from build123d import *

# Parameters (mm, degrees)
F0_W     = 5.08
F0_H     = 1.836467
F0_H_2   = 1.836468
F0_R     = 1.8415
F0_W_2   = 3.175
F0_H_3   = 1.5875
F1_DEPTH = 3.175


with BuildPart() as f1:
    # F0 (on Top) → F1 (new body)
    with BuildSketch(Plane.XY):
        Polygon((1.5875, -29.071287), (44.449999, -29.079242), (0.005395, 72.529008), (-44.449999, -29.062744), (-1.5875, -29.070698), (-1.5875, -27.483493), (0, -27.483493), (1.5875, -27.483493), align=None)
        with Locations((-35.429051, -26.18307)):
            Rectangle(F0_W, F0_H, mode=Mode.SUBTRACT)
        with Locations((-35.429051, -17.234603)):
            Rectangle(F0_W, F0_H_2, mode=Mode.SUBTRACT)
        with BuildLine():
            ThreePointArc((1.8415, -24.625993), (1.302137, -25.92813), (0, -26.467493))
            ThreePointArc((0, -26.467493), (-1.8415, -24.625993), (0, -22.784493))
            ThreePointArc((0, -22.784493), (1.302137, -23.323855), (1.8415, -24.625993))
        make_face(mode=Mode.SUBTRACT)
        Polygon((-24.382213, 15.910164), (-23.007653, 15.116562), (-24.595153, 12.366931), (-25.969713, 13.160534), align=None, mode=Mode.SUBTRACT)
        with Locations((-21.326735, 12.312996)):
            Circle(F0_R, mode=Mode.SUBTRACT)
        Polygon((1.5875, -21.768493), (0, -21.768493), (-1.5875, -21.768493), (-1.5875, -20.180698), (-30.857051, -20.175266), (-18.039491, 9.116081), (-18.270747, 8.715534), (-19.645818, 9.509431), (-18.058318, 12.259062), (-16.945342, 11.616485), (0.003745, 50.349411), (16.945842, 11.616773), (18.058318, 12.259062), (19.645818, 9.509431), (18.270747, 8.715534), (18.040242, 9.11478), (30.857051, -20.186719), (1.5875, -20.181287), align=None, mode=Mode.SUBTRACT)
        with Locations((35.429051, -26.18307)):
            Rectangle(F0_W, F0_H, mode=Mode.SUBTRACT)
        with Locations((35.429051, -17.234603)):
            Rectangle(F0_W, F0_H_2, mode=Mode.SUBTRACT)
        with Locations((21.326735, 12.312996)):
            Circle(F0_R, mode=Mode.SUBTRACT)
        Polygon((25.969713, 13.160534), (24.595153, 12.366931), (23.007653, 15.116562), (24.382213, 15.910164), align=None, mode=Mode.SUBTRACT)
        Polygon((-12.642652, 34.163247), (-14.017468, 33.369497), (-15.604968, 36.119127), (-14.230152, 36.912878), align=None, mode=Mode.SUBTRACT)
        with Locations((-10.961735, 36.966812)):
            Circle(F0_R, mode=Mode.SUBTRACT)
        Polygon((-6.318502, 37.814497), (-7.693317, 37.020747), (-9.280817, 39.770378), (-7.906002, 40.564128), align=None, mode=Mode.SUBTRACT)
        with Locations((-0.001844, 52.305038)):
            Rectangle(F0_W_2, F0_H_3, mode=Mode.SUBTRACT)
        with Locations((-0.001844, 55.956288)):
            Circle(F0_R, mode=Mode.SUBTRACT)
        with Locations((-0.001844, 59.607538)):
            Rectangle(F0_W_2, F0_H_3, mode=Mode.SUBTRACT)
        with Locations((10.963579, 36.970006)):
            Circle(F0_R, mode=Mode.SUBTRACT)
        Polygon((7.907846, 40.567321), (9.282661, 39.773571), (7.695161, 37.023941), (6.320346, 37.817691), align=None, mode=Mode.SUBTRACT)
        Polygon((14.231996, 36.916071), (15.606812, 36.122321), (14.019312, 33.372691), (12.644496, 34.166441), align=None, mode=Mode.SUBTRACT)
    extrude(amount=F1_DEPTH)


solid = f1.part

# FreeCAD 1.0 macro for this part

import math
import FreeCAD as App
import Part
import Sketcher
from FreeCAD import Vector
Q = App.Units.Quantity


def add_polygon(sketch, points):
    """Adds a closed chain of lines whose ends are joined by coincident constraints."""
    first, n = sketch.GeometryCount, len(points)
    for a, b in zip(points, points[1:] + points[:1]):
        sketch.addGeometry(Part.LineSegment(App.Vector(*a, 0), App.Vector(*b, 0)), False)
    for i in range(n):
        sketch.addConstraint(Sketcher.Constraint("Coincident", first + i, 2, first + (i + 1) % n, 1))

doc = App.newDocument("Part")
body = doc.addObject("PartDesign::Body", "Body")

sketch1 = body.newObject("Sketcher::SketchObject", "Sketch")
sketch1.AttachmentSupport = (doc.getObject("XY_Plane"), [""])
sketch1.MapMode = "FlatFace"
add_polygon(sketch1, [(1.5875, -29.071287), (44.449999, -29.079242), (0.005395, 72.529008), (-44.449999, -29.062744), (-1.5875, -29.070698), (-1.5875, -27.483493), (1.5875, -27.483493)])
add_polygon(sketch1, [(-32.889051, -27.101304), (-37.969051, -27.101304), (-37.969051, -25.264837), (-32.889051, -25.264837)])
add_polygon(sketch1, [(-32.889051, -18.152837), (-37.969051, -18.152837), (-37.969051, -16.316369), (-32.889051, -16.316369)])
add_polygon(sketch1, [(-25.969713, 13.160534), (-24.382213, 15.910164), (-23.007653, 15.116562), (-24.595153, 12.366931)])
sketch1.addGeometry(Part.Circle(Vector(-21.326735, 12.312996, 0), Vector(0, 0, 1), 1.8415), False)
sketch1.addGeometry(Part.ArcOfCircle(Part.Circle(Vector(0.000001, -24.625992, 0), Vector(0, 0, 1), 1.841499), math.radians(-0.000038), math.radians(90.000038)), False)
sketch1.addGeometry(Part.ArcOfCircle(Part.Circle(Vector(0, -24.625993, 0), Vector(0, 0, 1), 1.8415), math.radians(-89.999985), math.radians(-0.000015)), False)
sketch1.addGeometry(Part.ArcOfCircle(Part.Circle(Vector(0, -24.625993, 0), Vector(0, 0, 1), 1.8415), math.radians(90), math.radians(270)), False)
add_polygon(sketch1, [(37.969051, -27.101304), (32.889051, -27.101304), (32.889051, -25.264837), (37.969051, -25.264837)])
add_polygon(sketch1, [(37.969051, -18.152837), (32.889051, -18.152837), (32.889051, -16.316369), (37.969051, -16.316369)])
add_polygon(sketch1, [(1.5875, -20.181287), (1.5875, -21.768493), (-1.5875, -21.768493), (-1.5875, -20.180698), (-30.857051, -20.175266), (-18.039491, 9.116081), (-18.270747, 8.715534), (-19.645818, 9.509431), (-18.058318, 12.259062), (-16.945342, 11.616485), (0.003745, 50.349411), (16.945842, 11.616773), (18.058318, 12.259062), (19.645818, 9.509431), (18.270747, 8.715534), (18.040242, 9.11478), (30.857051, -20.186719)])
sketch1.addGeometry(Part.Circle(Vector(21.326735, 12.312996, 0), Vector(0, 0, 1), 1.8415), False)
add_polygon(sketch1, [(24.382213, 15.910164), (25.969713, 13.160534), (24.595153, 12.366931), (23.007653, 15.116562)])
add_polygon(sketch1, [(-14.230152, 36.912878), (-12.642652, 34.163247), (-14.017468, 33.369497), (-15.604968, 36.119127)])
sketch1.addGeometry(Part.Circle(Vector(-10.961735, 36.966812, 0), Vector(0, 0, 1), 1.8415), False)
add_polygon(sketch1, [(-7.906002, 40.564128), (-6.318502, 37.814497), (-7.693317, 37.020747), (-9.280817, 39.770378)])
add_polygon(sketch1, [(1.585656, 51.511288), (-1.589344, 51.511288), (-1.589344, 53.098788), (1.585656, 53.098788)])
sketch1.addGeometry(Part.Circle(Vector(-0.001844, 55.956288, 0), Vector(0, 0, 1), 1.8415), False)
add_polygon(sketch1, [(1.585656, 58.813788), (-1.589344, 58.813788), (-1.589344, 60.401288), (1.585656, 60.401288)])
add_polygon(sketch1, [(12.644496, 34.166441), (14.231996, 36.916071), (15.606812, 36.122321), (14.019312, 33.372691)])
sketch1.addGeometry(Part.Circle(Vector(10.963579, 36.970006, 0), Vector(0, 0, 1), 1.8415), False)
add_polygon(sketch1, [(6.320346, 37.817691), (7.907846, 40.567321), (9.282661, 39.773571), (7.695161, 37.023941)])
sketch1.addConstraint([
    Sketcher.Constraint("Tangent", 20, 1, 21, 2),
    Sketcher.Constraint("Tangent", 21, 1, 22, 2),
    Sketcher.Constraint("Tangent", 22, 1, 20, 2),
    Sketcher.Constraint("Vertical", 4),
    Sketcher.Constraint("Horizontal", 5),
    Sketcher.Constraint("Vertical", 6),
    Sketcher.Constraint("Horizontal", 7),
    Sketcher.Constraint("Vertical", 8),
    Sketcher.Constraint("Horizontal", 9),
    Sketcher.Constraint("Vertical", 10),
    Sketcher.Constraint("Horizontal", 11),
    Sketcher.Constraint("Vertical", 12),
    Sketcher.Constraint("Horizontal", 13),
    Sketcher.Constraint("Vertical", 14),
    Sketcher.Constraint("Horizontal", 23),
    Sketcher.Constraint("Vertical", 24),
    Sketcher.Constraint("Horizontal", 25),
    Sketcher.Constraint("Vertical", 26),
    Sketcher.Constraint("Horizontal", 27),
    Sketcher.Constraint("Vertical", 28),
    Sketcher.Constraint("Horizontal", 29),
    Sketcher.Constraint("Vertical", 30),
    Sketcher.Constraint("Vertical", 31),
    Sketcher.Constraint("Horizontal", 32),
    Sketcher.Constraint("Vertical", 33),
    Sketcher.Constraint("Horizontal", 62),
    Sketcher.Constraint("Vertical", 63),
    Sketcher.Constraint("Horizontal", 64),
    Sketcher.Constraint("Vertical", 65),
    Sketcher.Constraint("Horizontal", 67),
    Sketcher.Constraint("Vertical", 68),
    Sketcher.Constraint("Horizontal", 69),
    Sketcher.Constraint("Vertical", 70),
    Sketcher.Constraint("Equal", 19, 20),
    Sketcher.Constraint("Equal", 22, 48),
    Sketcher.Constraint("Equal", 48, 57),
    Sketcher.Constraint("Equal", 57, 66),
    Sketcher.Constraint("Equal", 66, 75),
    Sketcher.Constraint("Symmetric", 19, 3, 48, 3, -2),
    Sketcher.Constraint("Symmetric", 10, 2, 23, 2, -2),
    Sketcher.Constraint("Symmetric", 8, 2, 25, 2, -2),
    Sketcher.Constraint("Symmetric", 14, 2, 27, 2, -2),
    Sketcher.Constraint("Symmetric", 12, 2, 29, 2, -2),
    Sketcher.Constraint("Symmetric", 38, 2, 42, 2, -2),
    Sketcher.Constraint("Symmetric", 37, 2, 43, 2, -2),
    Sketcher.Constraint("Symmetric", 36, 2, 44, 2, -2),
    Sketcher.Constraint("Symmetric", 18, 2, 49, 2, -2),
    Sketcher.Constraint("Symmetric", 17, 2, 50, 2, -2),
    Sketcher.Constraint("Symmetric", 16, 2, 51, 2, -2),
    Sketcher.Constraint("Symmetric", 15, 2, 52, 2, -2),
    Sketcher.Constraint("PointOnObject", 20, 3, -2),
    Sketcher.Constraint("PointOnObject", 21, 1, -2),
    Sketcher.Constraint("PointOnObject", 22, 1, -2),
    Sketcher.Constraint("Parallel", 0, 3),
    Sketcher.Constraint("Perpendicular", 15, 16),
    Sketcher.Constraint("Perpendicular", 16, 17),
    Sketcher.Constraint("Perpendicular", 17, 18),
    Sketcher.Constraint("Parallel", 3, 34),
    Sketcher.Constraint("Parallel", 2, 35),
    Sketcher.Constraint("Perpendicular", 18, 36),
    Sketcher.Constraint("Perpendicular", 36, 37),
    Sketcher.Constraint("Perpendicular", 37, 38),
    Sketcher.Constraint("Perpendicular", 38, 39),
    Sketcher.Constraint("Parallel", 35, 40),
    Sketcher.Constraint("Parallel", 1, 41),
    Sketcher.Constraint("Perpendicular", 42, 43),
    Sketcher.Constraint("Perpendicular", 44, 45),
    Sketcher.Constraint("Parallel", 41, 46),
    Sketcher.Constraint("Parallel", 34, 47),
    Sketcher.Constraint("Perpendicular", 52, 53),
    Sketcher.Constraint("Perpendicular", 53, 54),
    Sketcher.Constraint("Perpendicular", 54, 55),
    Sketcher.Constraint("Perpendicular", 55, 56),
    Sketcher.Constraint("Perpendicular", 56, 58),
    Sketcher.Constraint("Perpendicular", 58, 59),
    Sketcher.Constraint("Perpendicular", 59, 60),
    Sketcher.Constraint("Perpendicular", 60, 61),
    Sketcher.Constraint("Perpendicular", 39, 71),
    Sketcher.Constraint("Perpendicular", 71, 72),
    Sketcher.Constraint("Perpendicular", 72, 73),
    Sketcher.Constraint("Perpendicular", 73, 74),
    Sketcher.Constraint("Perpendicular", 74, 76),
    Sketcher.Constraint("Perpendicular", 76, 77),
    Sketcher.Constraint("Perpendicular", 77, 78),
    Sketcher.Constraint("Perpendicular", 78, 79),
    Sketcher.Constraint("Horizontal", 22, 3, 20, 1),
    Sketcher.Constraint("Vertical", 8, 2, 11, 2),
    Sketcher.Constraint("Vertical", 10, 2, 13, 2),
    Sketcher.Constraint("Vertical", 6, 2, 31, 2),
    Sketcher.Constraint("Vertical", 4, 2, 32, 2),
    Sketcher.Constraint("Vertical", 63, 2, 67, 2),
    Sketcher.Constraint("Vertical", 65, 2, 69, 2),
    Sketcher.Constraint("Equal", 32, 62),
    Sketcher.Constraint("Equal", 10, 12),
    Sketcher.Constraint("Equal", 4, 31),
    Sketcher.Constraint("Equal", 6, 33),
    Sketcher.Constraint("Equal", 65, 68),
    Sketcher.Constraint("Equal", 0, 3),
    Sketcher.Constraint("Equal", 17, 38),
    Sketcher.Constraint("Equal", 34, 47),
    Sketcher.Constraint("Equal", 51, 53),
    Sketcher.Constraint("Equal", 55, 58),
    Sketcher.Constraint("Equal", 56, 59),
    Sketcher.Constraint("Equal", 60, 71),
    Sketcher.Constraint("Equal", 61, 72),
    Sketcher.Constraint("Equal", 73, 76),
    Sketcher.Constraint("Equal", 74, 77),
    Sketcher.Constraint("Diameter", 19, Q("0.145 in")),
    Sketcher.Constraint("DistanceX", 7, 2, 7, 1, Q("0.2 in")),
    Sketcher.Constraint("Angle", 15, Q("59.999994 deg")),
    Sketcher.Constraint("DistanceX", 5, 1, 5, 2, Q("0.125 in")),
    Sketcher.Constraint("DistanceY", 63, 1, 63, 2, Q("0.0625 in")),
    Sketcher.Constraint("DistanceX", -1, 1, 0, 2, Q("1.75 in")),
    Sketcher.Constraint("DistanceX", 2, 2, -1, 1, Q("1.75 in")),
    Sketcher.Constraint("Distance", 15, Q("0.125 in")),
    Sketcher.Constraint("Distance", 54, Q("0.0625 in")),
    Sketcher.Constraint("Distance", 35, 31.973002),
    Sketcher.Constraint("Distance", 46, 31.982002),
    Sketcher.Constraint("DistanceY", 3, 2, -1, 1, 29.070698),
    Sketcher.Constraint("DistanceX", 58, 2, -1, 1, 6.318502),
    Sketcher.Constraint("Distance", 1, 110.903378),
    Sketcher.Constraint("Distance", 2, 110.892588),
    Sketcher.Constraint("Distance", 34, 29.269552),
    Sketcher.Constraint("Distance", 36, 0.462512),
    Sketcher.Constraint("Distance", 45, 0.46101),
    Sketcher.Constraint("DistanceY", 4, 1, 4, 2, 1.587205),
    Sketcher.Constraint("DistanceY", 8, 1, 8, 2, 1.836467),
    Sketcher.Constraint("DistanceY", 20, 3, -1, 1, 24.625992),
    Sketcher.Constraint("DistanceY", -1, 1, 57, 3, 36.966812),
    Sketcher.Constraint("DistanceX", -1, 1, 75, 3, 10.963579),
    Sketcher.Constraint("DistanceX", 7, 2, -1, 1, 37.969051),
    Sketcher.Constraint("DistanceY", 12, 2, -1, 1, 16.316369),
    Sketcher.Constraint("DistanceY", -1, 1, 17, 2, 12.366931),
    Sketcher.Constraint("DistanceY", -1, 1, 35, 2, 9.116081),
    Sketcher.Constraint("DistanceY", -1, 1, 37, 2, 9.509431),
    Sketcher.Constraint("DistanceX", 39, 2, -1, 1, 16.945342),
    Sketcher.Constraint("DistanceY", -1, 1, 40, 2, 50.349411),
    Sketcher.Constraint("DistanceY", -1, 1, 67, 2, 58.813788),
    Sketcher.Constraint("DistanceY", -1, 1, 71, 2, 36.916071),
    Sketcher.Constraint("DistanceX", -1, 1, 73, 2, 14.019312),
    Sketcher.Constraint("DistanceY", -1, 1, 76, 2, 40.567321),
    Sketcher.Constraint("DistanceX", -1, 1, 77, 2, 9.282661),
    Sketcher.Constraint("Distance", 16, 1.587205),
    Sketcher.Constraint("DistanceX", 19, 3, -1, 1, 21.326735),
    Sketcher.Constraint("DistanceY", -1, 1, 19, 3, 12.312996),
    Sketcher.Constraint("DistanceX", 57, 3, -1, 1, 10.961735),
    Sketcher.Constraint("DistanceX", 66, 3, -1, 1, 0.001844),
    Sketcher.Constraint("DistanceY", -1, 1, 66, 3, 55.956288),
    Sketcher.Constraint("DistanceY", -1, 1, 75, 3, 36.970006),
    Sketcher.Constraint("DistanceY", 7, 2, -1, 1, 27.101304),
    Sketcher.Constraint("DistanceX", 15, 2, -1, 1, 24.382213),
    Sketcher.Constraint("DistanceX", 53, 2, -1, 1, 12.642652),
    Sketcher.Constraint("DistanceY", -1, 1, 53, 2, 34.163247),
    Sketcher.Constraint("DistanceY", -1, 1, 58, 2, 37.814497),
    Sketcher.Constraint("DistanceX", 62, 2, -1, 1, 1.589344),
    Sketcher.Constraint("DistanceY", -1, 1, 62, 2, 51.511288),
])
pad1 = body.newObject("PartDesign::Pad", "Pad")
pad1.Profile = sketch1
pad1.Length = Q("0.125 in")

doc.recompute()
